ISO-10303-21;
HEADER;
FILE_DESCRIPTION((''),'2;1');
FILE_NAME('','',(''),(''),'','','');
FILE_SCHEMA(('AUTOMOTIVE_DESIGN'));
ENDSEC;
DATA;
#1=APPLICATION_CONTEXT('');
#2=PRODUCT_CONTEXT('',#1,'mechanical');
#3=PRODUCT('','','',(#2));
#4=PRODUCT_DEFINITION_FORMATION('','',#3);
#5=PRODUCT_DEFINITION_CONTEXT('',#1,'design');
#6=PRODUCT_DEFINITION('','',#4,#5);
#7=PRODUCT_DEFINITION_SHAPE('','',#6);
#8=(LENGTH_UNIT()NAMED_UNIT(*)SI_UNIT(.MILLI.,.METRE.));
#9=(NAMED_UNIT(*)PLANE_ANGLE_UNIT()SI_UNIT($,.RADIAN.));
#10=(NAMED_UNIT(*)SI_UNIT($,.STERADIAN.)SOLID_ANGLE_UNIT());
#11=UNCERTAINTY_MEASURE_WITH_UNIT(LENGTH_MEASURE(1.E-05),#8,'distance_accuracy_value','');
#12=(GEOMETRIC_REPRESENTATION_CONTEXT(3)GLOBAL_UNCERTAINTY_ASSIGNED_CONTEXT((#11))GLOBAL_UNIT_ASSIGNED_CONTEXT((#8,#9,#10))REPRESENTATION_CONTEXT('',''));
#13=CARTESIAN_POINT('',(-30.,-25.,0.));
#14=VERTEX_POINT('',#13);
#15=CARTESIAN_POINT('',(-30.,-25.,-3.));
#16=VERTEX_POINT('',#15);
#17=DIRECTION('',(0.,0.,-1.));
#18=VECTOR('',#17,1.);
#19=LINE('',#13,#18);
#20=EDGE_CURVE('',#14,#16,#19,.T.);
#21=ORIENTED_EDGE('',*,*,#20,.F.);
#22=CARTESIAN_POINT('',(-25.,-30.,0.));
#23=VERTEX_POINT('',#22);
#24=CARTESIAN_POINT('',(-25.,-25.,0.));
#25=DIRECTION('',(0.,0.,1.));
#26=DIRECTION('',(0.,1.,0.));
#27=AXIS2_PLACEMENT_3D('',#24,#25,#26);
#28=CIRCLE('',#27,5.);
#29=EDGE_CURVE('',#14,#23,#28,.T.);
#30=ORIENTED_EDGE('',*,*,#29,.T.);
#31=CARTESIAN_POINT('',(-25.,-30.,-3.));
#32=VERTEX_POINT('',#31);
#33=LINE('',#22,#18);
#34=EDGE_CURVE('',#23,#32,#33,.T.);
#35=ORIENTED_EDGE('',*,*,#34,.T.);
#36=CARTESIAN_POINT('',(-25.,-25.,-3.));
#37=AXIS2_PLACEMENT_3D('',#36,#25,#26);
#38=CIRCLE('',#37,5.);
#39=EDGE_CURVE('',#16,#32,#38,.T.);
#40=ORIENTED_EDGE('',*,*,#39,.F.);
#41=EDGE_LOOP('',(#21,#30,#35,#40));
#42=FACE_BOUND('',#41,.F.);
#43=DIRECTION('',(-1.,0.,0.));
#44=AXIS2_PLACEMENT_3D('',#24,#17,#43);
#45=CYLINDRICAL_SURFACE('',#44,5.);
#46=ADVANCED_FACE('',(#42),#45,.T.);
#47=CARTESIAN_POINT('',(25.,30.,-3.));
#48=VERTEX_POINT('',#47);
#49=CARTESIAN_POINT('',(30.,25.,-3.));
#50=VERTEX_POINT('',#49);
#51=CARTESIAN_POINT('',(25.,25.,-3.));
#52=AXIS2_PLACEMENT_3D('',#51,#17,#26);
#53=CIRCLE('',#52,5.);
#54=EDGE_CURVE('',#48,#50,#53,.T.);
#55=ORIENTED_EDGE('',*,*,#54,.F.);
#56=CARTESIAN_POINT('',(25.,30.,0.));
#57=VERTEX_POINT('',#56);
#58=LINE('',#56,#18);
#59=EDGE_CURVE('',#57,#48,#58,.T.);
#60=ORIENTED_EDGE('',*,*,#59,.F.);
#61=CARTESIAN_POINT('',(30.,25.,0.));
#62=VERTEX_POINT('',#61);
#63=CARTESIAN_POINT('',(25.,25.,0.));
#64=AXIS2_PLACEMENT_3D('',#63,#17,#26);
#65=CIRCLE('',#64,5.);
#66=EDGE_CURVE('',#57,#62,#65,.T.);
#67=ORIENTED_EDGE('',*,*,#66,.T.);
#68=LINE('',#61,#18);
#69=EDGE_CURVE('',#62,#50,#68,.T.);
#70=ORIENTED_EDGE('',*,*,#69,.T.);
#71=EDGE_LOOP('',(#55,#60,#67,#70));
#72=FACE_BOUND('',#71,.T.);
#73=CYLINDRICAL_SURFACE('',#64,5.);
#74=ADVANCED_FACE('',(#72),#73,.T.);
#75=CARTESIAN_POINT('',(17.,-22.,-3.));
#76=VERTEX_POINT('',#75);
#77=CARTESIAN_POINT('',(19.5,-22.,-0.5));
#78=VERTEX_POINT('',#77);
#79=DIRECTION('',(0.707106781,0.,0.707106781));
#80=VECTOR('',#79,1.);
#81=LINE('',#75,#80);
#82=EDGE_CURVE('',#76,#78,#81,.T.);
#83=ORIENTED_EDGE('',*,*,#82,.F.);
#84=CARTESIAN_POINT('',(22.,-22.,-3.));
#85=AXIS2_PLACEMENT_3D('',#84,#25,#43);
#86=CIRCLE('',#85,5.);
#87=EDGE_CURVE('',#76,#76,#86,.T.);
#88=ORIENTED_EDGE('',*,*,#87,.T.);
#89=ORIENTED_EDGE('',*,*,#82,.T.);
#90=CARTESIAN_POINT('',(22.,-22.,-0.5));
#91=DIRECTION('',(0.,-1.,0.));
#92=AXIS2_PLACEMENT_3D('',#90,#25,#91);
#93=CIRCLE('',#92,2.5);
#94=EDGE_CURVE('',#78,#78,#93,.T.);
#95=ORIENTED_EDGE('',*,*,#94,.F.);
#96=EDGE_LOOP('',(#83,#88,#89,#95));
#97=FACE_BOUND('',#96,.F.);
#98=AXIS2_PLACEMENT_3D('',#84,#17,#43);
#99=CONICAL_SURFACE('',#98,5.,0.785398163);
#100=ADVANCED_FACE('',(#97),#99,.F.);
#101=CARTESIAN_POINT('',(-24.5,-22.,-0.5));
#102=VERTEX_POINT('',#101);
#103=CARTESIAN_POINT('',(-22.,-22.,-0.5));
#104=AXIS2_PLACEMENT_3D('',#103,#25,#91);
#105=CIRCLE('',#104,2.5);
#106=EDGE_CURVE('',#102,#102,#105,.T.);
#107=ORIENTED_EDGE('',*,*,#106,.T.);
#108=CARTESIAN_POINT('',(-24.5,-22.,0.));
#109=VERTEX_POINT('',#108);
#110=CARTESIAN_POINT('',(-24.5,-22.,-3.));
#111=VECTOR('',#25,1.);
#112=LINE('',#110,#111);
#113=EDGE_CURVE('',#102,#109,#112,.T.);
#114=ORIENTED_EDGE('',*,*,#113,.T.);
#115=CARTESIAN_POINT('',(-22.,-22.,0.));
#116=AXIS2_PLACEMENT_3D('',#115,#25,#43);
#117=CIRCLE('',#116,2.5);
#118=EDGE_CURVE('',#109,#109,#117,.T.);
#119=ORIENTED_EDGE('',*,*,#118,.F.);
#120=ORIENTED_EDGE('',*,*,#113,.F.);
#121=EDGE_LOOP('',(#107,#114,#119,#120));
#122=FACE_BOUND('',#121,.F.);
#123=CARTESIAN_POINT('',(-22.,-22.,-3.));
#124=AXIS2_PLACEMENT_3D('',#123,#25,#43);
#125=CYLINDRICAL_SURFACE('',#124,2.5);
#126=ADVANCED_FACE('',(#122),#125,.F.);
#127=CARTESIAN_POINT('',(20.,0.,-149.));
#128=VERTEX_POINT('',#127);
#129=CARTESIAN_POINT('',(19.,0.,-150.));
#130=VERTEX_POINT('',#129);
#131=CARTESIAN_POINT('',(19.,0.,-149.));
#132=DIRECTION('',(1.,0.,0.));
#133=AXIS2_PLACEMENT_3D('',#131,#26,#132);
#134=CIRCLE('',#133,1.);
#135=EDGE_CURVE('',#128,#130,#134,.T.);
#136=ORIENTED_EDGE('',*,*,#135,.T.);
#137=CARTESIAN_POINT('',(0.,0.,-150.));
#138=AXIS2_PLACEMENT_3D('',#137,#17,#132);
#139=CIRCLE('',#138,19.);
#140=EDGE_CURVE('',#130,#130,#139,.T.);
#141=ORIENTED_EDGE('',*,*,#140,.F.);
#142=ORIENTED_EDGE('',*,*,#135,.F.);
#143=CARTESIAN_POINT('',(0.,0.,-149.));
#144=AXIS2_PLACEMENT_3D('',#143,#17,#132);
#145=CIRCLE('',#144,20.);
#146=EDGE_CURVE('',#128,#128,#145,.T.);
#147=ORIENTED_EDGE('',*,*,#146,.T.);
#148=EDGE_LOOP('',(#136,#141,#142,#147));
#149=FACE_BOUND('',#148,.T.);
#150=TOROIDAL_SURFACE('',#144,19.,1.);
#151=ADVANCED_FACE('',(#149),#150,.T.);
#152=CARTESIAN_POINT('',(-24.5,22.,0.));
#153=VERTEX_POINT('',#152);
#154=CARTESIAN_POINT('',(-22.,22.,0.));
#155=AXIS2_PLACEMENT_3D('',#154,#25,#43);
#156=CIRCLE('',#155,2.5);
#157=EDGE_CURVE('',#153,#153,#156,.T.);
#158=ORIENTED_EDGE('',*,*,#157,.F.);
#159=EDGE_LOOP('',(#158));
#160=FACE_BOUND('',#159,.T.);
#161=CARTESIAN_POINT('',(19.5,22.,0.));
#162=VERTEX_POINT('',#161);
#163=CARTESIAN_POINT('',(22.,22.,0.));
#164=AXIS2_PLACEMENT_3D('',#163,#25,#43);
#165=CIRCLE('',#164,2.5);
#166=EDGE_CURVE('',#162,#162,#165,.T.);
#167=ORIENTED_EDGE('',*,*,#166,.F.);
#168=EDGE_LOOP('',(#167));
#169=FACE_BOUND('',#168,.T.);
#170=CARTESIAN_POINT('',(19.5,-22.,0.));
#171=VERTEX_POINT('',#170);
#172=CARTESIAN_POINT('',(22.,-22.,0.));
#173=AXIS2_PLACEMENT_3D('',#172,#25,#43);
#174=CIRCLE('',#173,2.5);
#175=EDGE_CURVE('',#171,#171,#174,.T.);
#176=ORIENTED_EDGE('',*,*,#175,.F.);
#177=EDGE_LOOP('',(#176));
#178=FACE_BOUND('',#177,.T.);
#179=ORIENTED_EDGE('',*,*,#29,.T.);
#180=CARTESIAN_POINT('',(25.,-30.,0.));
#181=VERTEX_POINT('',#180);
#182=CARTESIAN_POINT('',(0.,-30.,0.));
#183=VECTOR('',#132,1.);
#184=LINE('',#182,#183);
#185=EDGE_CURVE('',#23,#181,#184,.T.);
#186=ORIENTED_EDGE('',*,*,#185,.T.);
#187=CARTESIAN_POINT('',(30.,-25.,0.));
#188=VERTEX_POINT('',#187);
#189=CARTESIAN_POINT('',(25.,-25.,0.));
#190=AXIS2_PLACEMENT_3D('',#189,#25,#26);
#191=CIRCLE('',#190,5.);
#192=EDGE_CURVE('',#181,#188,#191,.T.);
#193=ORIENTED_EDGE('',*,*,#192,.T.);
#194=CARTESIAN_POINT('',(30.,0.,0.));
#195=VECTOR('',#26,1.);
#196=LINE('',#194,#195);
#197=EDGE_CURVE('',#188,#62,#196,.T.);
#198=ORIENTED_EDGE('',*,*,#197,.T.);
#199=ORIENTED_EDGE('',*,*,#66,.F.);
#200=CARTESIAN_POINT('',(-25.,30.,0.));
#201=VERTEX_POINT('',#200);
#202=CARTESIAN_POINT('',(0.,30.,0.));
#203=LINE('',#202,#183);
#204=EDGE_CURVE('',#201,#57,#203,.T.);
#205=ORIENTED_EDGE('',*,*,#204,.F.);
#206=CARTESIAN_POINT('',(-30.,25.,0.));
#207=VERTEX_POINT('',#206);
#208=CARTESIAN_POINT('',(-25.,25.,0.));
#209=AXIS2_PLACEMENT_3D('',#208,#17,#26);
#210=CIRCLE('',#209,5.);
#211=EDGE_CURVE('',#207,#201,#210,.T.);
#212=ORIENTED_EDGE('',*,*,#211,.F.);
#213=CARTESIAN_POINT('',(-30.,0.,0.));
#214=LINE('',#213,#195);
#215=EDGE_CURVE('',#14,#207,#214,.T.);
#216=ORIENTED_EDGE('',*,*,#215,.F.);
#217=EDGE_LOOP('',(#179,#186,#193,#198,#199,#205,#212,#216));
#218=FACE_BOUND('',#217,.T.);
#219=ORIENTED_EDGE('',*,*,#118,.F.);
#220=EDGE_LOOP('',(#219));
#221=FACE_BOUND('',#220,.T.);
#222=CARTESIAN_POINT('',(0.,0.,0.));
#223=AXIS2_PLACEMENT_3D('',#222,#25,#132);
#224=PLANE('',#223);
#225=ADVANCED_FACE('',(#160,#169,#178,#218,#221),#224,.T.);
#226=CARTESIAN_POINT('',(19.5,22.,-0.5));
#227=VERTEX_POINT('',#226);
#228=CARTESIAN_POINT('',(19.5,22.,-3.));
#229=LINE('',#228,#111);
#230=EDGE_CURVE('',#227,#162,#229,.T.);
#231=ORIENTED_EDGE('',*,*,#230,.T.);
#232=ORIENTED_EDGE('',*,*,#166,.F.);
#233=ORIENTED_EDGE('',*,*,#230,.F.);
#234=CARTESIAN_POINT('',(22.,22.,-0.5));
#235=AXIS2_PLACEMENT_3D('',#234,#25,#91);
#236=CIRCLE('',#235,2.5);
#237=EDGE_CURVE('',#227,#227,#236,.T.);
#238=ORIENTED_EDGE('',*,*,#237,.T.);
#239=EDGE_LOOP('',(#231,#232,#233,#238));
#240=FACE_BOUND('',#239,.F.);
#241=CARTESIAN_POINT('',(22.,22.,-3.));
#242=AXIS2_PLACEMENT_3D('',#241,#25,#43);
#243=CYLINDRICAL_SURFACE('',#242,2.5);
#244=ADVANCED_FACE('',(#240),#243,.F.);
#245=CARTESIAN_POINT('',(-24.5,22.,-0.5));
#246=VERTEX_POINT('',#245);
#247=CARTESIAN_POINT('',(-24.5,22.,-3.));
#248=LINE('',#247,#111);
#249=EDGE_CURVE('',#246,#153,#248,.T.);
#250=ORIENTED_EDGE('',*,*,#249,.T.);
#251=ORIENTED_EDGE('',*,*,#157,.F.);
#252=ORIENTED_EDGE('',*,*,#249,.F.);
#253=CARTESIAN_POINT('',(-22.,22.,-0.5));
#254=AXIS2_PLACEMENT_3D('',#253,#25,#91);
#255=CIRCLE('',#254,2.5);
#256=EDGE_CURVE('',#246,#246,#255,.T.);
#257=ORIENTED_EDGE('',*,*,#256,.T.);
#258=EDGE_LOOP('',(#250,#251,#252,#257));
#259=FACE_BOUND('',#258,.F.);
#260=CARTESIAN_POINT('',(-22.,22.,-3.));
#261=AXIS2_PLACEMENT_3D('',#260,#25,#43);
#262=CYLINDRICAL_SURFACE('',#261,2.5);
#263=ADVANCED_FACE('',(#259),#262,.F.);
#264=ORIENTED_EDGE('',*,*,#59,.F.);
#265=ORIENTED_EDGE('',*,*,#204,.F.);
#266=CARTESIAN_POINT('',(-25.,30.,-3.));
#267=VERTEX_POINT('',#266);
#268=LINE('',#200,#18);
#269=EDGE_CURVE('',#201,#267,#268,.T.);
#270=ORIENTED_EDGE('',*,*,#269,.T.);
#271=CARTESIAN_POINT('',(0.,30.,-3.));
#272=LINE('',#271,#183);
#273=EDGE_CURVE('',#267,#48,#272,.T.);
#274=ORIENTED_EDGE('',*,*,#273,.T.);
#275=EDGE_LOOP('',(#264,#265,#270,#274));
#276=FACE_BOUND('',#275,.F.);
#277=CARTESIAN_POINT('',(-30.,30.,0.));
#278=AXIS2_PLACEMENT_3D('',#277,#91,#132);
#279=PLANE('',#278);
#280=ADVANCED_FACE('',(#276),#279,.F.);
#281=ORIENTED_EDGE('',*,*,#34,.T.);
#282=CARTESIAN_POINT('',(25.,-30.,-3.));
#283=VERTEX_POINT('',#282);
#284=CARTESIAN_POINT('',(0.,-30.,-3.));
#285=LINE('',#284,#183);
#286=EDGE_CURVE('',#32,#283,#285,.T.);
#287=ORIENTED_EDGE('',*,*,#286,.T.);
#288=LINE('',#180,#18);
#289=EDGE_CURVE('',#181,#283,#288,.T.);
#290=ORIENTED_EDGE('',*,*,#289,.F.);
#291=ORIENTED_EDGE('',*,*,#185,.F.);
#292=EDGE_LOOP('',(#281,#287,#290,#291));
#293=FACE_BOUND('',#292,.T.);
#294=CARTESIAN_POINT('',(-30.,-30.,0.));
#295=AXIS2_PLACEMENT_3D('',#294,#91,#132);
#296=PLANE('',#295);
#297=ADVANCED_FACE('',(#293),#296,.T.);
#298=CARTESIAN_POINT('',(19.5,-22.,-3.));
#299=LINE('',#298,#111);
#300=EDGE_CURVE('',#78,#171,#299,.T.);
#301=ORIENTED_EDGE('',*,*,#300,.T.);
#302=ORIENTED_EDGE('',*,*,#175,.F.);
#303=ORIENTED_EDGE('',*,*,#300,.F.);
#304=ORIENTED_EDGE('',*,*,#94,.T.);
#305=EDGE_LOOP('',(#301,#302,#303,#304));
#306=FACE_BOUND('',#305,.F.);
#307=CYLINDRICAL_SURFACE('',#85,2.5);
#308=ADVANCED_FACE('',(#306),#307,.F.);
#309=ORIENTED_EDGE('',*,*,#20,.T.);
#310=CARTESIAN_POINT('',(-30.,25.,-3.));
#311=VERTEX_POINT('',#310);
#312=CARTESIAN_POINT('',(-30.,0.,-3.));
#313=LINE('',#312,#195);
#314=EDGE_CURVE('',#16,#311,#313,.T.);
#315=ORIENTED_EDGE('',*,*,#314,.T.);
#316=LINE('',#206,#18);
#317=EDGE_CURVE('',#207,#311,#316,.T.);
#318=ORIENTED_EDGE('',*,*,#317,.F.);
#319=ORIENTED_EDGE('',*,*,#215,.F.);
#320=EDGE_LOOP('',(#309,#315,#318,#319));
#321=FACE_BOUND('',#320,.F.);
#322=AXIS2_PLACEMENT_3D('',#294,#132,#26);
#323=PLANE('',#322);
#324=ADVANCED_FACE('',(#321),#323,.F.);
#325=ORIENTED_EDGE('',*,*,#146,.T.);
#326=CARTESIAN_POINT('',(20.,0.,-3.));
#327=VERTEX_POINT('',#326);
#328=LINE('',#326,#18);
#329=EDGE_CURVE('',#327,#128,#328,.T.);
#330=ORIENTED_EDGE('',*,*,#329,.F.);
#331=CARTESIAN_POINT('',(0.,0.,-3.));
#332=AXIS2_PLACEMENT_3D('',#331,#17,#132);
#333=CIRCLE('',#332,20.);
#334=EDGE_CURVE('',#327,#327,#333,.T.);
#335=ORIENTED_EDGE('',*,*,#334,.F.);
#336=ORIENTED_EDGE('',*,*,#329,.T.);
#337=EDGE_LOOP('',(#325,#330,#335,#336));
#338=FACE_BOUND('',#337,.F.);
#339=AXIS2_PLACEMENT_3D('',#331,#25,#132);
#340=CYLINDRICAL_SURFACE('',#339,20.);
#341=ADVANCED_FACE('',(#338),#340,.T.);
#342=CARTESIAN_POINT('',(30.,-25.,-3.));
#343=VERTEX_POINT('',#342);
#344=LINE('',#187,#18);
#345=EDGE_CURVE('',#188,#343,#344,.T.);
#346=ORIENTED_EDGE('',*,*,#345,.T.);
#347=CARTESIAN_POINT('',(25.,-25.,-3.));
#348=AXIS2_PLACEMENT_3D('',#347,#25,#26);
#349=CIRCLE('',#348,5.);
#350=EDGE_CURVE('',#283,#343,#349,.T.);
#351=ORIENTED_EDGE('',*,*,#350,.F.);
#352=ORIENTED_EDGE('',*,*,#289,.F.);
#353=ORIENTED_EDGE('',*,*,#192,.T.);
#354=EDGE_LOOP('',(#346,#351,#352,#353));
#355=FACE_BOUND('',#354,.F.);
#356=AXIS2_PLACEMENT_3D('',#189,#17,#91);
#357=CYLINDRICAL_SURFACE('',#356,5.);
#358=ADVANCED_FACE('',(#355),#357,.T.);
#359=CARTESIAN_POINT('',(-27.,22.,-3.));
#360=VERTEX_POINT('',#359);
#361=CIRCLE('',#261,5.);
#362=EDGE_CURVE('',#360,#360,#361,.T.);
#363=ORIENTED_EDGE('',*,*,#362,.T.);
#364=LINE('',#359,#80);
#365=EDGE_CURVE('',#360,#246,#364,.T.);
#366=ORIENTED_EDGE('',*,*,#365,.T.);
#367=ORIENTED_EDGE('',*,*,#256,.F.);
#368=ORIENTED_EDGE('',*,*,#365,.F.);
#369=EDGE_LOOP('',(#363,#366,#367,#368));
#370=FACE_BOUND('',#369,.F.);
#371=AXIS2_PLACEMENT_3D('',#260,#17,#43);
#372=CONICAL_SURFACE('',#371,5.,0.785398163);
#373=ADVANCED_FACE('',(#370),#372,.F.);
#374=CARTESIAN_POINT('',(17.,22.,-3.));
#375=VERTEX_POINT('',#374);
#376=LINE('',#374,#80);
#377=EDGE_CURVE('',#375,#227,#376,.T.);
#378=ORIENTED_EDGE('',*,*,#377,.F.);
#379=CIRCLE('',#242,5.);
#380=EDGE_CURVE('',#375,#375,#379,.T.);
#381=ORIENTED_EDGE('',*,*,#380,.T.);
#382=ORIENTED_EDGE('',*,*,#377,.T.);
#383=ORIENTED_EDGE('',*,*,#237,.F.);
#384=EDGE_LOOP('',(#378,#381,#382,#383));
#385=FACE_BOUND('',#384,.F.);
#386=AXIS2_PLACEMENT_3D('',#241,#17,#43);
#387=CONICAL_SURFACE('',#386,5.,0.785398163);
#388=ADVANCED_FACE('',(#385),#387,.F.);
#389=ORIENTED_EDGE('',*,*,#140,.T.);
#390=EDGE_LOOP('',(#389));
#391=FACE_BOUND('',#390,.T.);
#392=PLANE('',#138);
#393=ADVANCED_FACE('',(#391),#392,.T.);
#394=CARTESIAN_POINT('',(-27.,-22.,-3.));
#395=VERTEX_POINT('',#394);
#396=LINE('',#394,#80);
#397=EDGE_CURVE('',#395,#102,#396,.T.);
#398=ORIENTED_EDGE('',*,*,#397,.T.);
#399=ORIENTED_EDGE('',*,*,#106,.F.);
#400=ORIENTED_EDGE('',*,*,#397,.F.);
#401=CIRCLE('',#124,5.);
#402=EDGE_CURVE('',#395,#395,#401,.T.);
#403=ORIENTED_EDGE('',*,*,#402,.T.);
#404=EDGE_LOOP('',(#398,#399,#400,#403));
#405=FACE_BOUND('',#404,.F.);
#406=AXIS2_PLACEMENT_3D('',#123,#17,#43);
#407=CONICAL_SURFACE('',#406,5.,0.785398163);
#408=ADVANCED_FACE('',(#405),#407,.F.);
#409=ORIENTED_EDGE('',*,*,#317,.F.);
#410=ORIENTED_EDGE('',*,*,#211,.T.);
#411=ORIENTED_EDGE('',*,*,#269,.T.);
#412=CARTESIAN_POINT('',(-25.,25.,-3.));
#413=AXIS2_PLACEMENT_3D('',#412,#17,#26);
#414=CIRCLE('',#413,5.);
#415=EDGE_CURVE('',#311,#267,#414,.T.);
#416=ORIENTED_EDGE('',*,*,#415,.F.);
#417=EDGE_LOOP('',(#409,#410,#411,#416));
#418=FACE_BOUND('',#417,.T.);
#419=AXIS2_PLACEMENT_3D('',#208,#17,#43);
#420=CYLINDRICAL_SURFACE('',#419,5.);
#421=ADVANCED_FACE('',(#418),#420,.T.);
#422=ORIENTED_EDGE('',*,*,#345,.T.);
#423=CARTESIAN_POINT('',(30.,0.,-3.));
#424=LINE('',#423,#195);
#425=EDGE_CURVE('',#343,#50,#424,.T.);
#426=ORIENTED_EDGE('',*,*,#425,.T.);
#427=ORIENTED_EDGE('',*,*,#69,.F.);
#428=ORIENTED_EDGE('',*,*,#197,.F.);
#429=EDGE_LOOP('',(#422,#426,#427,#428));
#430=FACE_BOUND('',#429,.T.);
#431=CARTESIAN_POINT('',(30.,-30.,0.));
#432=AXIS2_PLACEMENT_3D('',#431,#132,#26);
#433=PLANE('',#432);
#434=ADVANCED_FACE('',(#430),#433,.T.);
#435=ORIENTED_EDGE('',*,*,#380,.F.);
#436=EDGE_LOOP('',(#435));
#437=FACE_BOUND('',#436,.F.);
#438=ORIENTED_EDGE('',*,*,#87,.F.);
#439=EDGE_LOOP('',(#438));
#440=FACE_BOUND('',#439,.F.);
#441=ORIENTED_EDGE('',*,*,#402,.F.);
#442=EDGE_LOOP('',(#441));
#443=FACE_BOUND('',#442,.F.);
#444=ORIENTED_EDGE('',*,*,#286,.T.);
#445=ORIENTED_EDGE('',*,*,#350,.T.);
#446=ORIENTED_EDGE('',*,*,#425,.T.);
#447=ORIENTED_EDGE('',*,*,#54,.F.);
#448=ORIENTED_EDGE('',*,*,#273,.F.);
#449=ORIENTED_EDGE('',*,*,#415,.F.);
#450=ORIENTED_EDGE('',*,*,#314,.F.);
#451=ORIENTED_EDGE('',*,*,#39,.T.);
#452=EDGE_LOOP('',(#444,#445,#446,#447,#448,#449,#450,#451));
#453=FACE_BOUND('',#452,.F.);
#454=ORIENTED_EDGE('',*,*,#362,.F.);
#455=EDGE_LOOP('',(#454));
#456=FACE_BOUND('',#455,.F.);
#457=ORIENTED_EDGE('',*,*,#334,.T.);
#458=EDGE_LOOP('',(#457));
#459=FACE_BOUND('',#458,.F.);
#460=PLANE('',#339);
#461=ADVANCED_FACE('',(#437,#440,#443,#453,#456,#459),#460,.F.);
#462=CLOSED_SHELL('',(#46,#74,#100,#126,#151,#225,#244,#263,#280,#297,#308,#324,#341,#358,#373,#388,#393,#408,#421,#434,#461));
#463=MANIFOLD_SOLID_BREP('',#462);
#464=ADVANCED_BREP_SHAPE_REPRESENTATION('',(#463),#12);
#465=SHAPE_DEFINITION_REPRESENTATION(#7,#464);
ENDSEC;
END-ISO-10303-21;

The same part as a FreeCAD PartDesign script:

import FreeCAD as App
import Part
import Sketcher

V = App.Vector
Q = App.Units.Quantity


def edges_at(feature, points):
    """Names of the edges that pass closest to the given points."""
    edges = feature.Shape.Edges
    near = lambda p: min(range(len(edges)), key=lambda i: edges[i].distToShape(Part.Vertex(*p))[0])
    return sorted({f"Edge{near(p) + 1}" for p in points})


def add_polygon(sketch, points):
    """Adds a closed chain of lines whose ends are joined by coincident constraints."""
    first, n = sketch.GeometryCount, len(points)
    for a, b in zip(points, points[1:] + points[:1]):
        sketch.addGeometry(Part.LineSegment(App.Vector(*a, 0), App.Vector(*b, 0)), False)
    for i in range(n):
        sketch.addConstraint(Sketcher.Constraint("Coincident", first + i, 2, first + (i + 1) % n, 1))

doc = App.newDocument("Part")
body = doc.addObject("PartDesign::Body", "Body")

sketch1 = body.newObject("Sketcher::SketchObject", "Sketch")
sketch1.AttachmentSupport = (doc.getObject("XY_Plane"), [""])
sketch1.MapMode = "FlatFace"
add_polygon(sketch1, [(-30, 30), (-30, -30), (30, -30), (30, 30)])
sketch1.addConstraint(Sketcher.Constraint("Vertical", 0))
sketch1.addConstraint(Sketcher.Constraint("Horizontal", 1))
sketch1.addConstraint(Sketcher.Constraint("Vertical", 2))
sketch1.addConstraint(Sketcher.Constraint("Horizontal", 3))
sketch1.addConstraint(Sketcher.Constraint("Symmetric", 0, 2, 2, 2, -1, 1))
sketch1.addConstraint(Sketcher.Constraint("Equal", 3, 0))
sketch1.addConstraint(Sketcher.Constraint("DistanceX", 1, 1, 1, 2, Q("60 mm")))
pad1 = body.newObject("PartDesign::Pad", "Pad")
pad1.Profile = sketch1
pad1.Length = 3
pad1.Reversed = True

sketch2 = body.newObject("Sketcher::SketchObject", "Sketch001")
sketch2.AttachmentSupport = (doc.getObject("XY_Plane"), [""])
sketch2.MapMode = "FlatFace"
sketch2.AttachmentOffset = App.Placement(V(0, 0, -3), App.Rotation())
sketch2.addGeometry(Part.Circle(V(0, 0, 0), V(0, 0, 1), 20), False)
sketch2.addConstraint(Sketcher.Constraint("Coincident", 0, 3, -1, 1))
sketch2.addConstraint(Sketcher.Constraint("Diameter", 0, Q("40 mm")))
pad2 = body.newObject("PartDesign::Pad", "Pad001")
pad2.Profile = sketch2
pad2.Length = 147
pad2.Reversed = True
doc.recompute()

fillet = body.newObject("PartDesign::Fillet", "Fillet")
fillet.Base = (pad2, edges_at(pad2, [
    (-30, -30, -1.5),
    (30, -30, -1.5),
    (30, 30, -1.5),
    (-30, 30, -1.5),
]))
fillet.Radius = 5

sketch3 = body.newObject("Sketcher::SketchObject", "Sketch002")
sketch3.AttachmentSupport = (doc.getObject("XY_Plane"), [""])
sketch3.MapMode = "FlatFace"
sketch3.AttachmentOffset = App.Placement(V(0, 0, -3), App.Rotation())
sketch3.addGeometry(Part.Circle(V(-22, -22, 0), V(0, 0, 1), 2.5), False)
sketch3.addGeometry(Part.Circle(V(22, -22, 0), V(0, 0, 1), 2.5), False)
sketch3.addGeometry(Part.Circle(V(22, 22, 0), V(0, 0, 1), 2.5), False)
sketch3.addGeometry(Part.Circle(V(-22, 22, 0), V(0, 0, 1), 2.5), False)
sketch3.addConstraint(Sketcher.Constraint("Equal", 0, 1))
sketch3.addConstraint(Sketcher.Constraint("Equal", 1, 2))
sketch3.addConstraint(Sketcher.Constraint("Equal", 2, 3))
sketch3.addConstraint(Sketcher.Constraint("Symmetric", 0, 3, 2, 3, -1, 1))
sketch3.addConstraint(Sketcher.Constraint("Symmetric", 1, 3, 3, 3, -1, 1))
sketch3.addConstraint(Sketcher.Constraint("Symmetric", 0, 3, 1, 3, -2))
sketch3.addConstraint(Sketcher.Constraint("Diameter", 0, Q("5 mm")))
sketch3.addConstraint(Sketcher.Constraint("DistanceX", 0, 3, -1, 1, Q("22 mm")))
sketch3.addConstraint(Sketcher.Constraint("DistanceY", 0, 3, -1, 1, Q("22 mm")))
doc.recompute()
hole = body.newObject("PartDesign::Hole", "Hole")
hole.Profile = sketch3
hole.ThreadType = "None"
hole.Diameter = 5
hole.DepthType = "ThroughAll"
hole.HoleCutType = "Countersink"
hole.HoleCutDiameter = 10
hole.HoleCutCountersinkAngle = 90
hole.Reversed = True
doc.recompute()

fillet2 = body.newObject("PartDesign::Fillet", "Fillet001")
fillet2.Base = (hole, edges_at(hole, [(-20, 0, -150)]))
fillet2.Radius = 1

doc.recompute()
